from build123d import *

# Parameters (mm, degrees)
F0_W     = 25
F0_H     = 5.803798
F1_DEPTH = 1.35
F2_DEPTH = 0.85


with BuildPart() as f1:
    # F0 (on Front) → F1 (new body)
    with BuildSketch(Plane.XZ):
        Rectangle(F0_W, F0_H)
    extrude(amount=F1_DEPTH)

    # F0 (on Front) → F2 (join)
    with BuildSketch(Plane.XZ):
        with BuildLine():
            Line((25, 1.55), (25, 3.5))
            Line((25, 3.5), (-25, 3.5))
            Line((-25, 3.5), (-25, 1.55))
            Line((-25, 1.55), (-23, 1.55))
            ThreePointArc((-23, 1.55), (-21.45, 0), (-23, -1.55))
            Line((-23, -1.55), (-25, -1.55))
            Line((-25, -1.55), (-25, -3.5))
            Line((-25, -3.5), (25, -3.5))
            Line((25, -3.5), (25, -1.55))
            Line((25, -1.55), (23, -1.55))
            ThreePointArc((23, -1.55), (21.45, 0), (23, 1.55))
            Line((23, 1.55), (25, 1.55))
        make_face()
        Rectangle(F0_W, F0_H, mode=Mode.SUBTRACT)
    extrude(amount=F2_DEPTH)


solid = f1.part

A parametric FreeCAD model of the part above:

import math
import FreeCAD as App
import Part
import Sketcher

V = App.Vector


def add_polygon(sketch, points):
    """Adds a closed chain of lines whose ends are joined by coincident constraints."""
    first, n = sketch.GeometryCount, len(points)
    for a, b in zip(points, points[1:] + points[:1]):
        sketch.addGeometry(Part.LineSegment(App.Vector(*a, 0), App.Vector(*b, 0)), False)
    for i in range(n):
        sketch.addConstraint(Sketcher.Constraint("Coincident", first + i, 2, first + (i + 1) % n, 1))

doc = App.newDocument("Part")
body = doc.addObject("PartDesign::Body", "Body")

# Sketch on XZ plane
sketch1 = body.newObject("Sketcher::SketchObject", "Sketch")
sketch1.AttachmentSupport = (doc.getObject("XZ_Plane"), [""])
sketch1.MapMode = "FlatFace"
add_polygon(sketch1, [(-12.5, 2.901899), (-12.5, -2.901899), (12.5, -2.901899), (12.5, 2.901899)])  # lines 0-3
sketch1.addConstraint([
    Sketcher.Constraint("Vertical", 0),
    Sketcher.Constraint("Horizontal", 1),
    Sketcher.Constraint("Vertical", 2),
    Sketcher.Constraint("Horizontal", 3),
    Sketcher.Constraint("Symmetric", 0, 2, 2, 2, -1, 1),
    Sketcher.Constraint("DistanceX", 1, 1, 1, 2, 25.0),
    Sketcher.Constraint("DistanceY", 0, 2, -1, 1, 2.901899),
])
pad1 = body.newObject("PartDesign::Pad", "Pad")
pad1.Profile = sketch1
pad1.Length = 1.35

# Sketch on XZ plane
sketch2 = body.newObject("Sketcher::SketchObject", "Sketch001")
sketch2.AttachmentSupport = (doc.getObject("XZ_Plane"), [""])
sketch2.MapMode = "FlatFace"
sketch2.addGeometry(Part.LineSegment(V(25, 1.55, 0), V(25, 3.5, 0)), False)  # 0
sketch2.addGeometry(Part.LineSegment(V(25, 3.5, 0), V(-25, 3.5, 0)), False)  # 1
sketch2.addGeometry(Part.LineSegment(V(-25, 3.5, 0), V(-25, 1.55, 0)), False)  # 2
sketch2.addGeometry(Part.LineSegment(V(-25, 1.55, 0), V(-23, 1.55, 0)), False)  # 3
sketch2.addGeometry(Part.ArcOfCircle(Part.Circle(V(-23, 0, 0), V(0, 0, 1), 1.55), math.radians(-90), math.radians(90)), False)  # 4
sketch2.addGeometry(Part.LineSegment(V(-23, -1.55, 0), V(-25, -1.55, 0)), False)  # 5
sketch2.addGeometry(Part.LineSegment(V(-25, -1.55, 0), V(-25, -3.5, 0)), False)  # 6
sketch2.addGeometry(Part.LineSegment(V(-25, -3.5, 0), V(25, -3.5, 0)), False)  # 7
sketch2.addGeometry(Part.LineSegment(V(25, -3.5, 0), V(25, -1.55, 0)), False)  # 8
sketch2.addGeometry(Part.LineSegment(V(25, -1.55, 0), V(23, -1.55, 0)), False)  # 9
sketch2.addGeometry(Part.ArcOfCircle(Part.Circle(V(23, 0, 0), V(0, 0, 1), 1.55), math.radians(90), math.radians(270)), False)  # 10
sketch2.addGeometry(Part.LineSegment(V(23, 1.55, 0), V(25, 1.55, 0)), False)  # 11
add_polygon(sketch2, [(12.5, -2.901899), (-12.5, -2.901899), (-12.5, 2.901899), (12.5, 2.901899)])  # lines 12-15
sketch2.addConstraint([
    Sketcher.Constraint("Coincident", 0, 2, 1, 1),
    Sketcher.Constraint("Coincident", 1, 2, 2, 1),
    Sketcher.Constraint("Coincident", 2, 2, 3, 1),
    Sketcher.Constraint("Tangent", 3, 2, 4, 2),
    Sketcher.Constraint("Tangent", 4, 1, 5, 1),
    Sketcher.Constraint("Coincident", 5, 2, 6, 1),
    Sketcher.Constraint("Coincident", 6, 2, 7, 1),
    Sketcher.Constraint("Coincident", 7, 2, 8, 1),
    Sketcher.Constraint("Coincident", 8, 2, 9, 1),
    Sketcher.Constraint("Tangent", 9, 2, 10, 2),
    Sketcher.Constraint("Tangent", 10, 1, 11, 1),
    Sketcher.Constraint("Coincident", 11, 2, 0, 1),
    Sketcher.Constraint("Vertical", 0),
    Sketcher.Constraint("Horizontal", 1),
    Sketcher.Constraint("Vertical", 2),
    Sketcher.Constraint("Horizontal", 3),
    Sketcher.Constraint("Horizontal", 5),
    Sketcher.Constraint("Vertical", 6),
    Sketcher.Constraint("Horizontal", 7),
    Sketcher.Constraint("Vertical", 8),
    Sketcher.Constraint("Horizontal", 9),
    Sketcher.Constraint("Horizontal", 11),
    Sketcher.Constraint("Horizontal", 12),
    Sketcher.Constraint("Vertical", 13),
    Sketcher.Constraint("Horizontal", 14),
    Sketcher.Constraint("Vertical", 15),
    Sketcher.Constraint("Equal", 4, 10),
    Sketcher.Constraint("Symmetric", 4, 3, 10, 3, -1, 1),
    Sketcher.Constraint("Symmetric", 0, 2, 6, 2, -1, 1),
    Sketcher.Constraint("Symmetric", 12, 2, 14, 2, -1, 1),
    Sketcher.Constraint("Symmetric", 5, 2, 8, 2, -2),
    Sketcher.Constraint("Vertical", 2, 2, 5, 2),
    Sketcher.Constraint("DistanceX", 1, 2, 1, 1, 50.0),
    Sketcher.Constraint("DistanceX", 3, 1, 3, 2, 2.0),
    Sketcher.Constraint("DistanceX", 12, 2, 12, 1, 25.0),
    Sketcher.Constraint("Radius", 4, 1.55),
    Sketcher.Constraint("DistanceY", 7, 2, 0, 2, 7.0),
    Sketcher.Constraint("DistanceY", 12, 2, -1, 1, 2.901899),
])
pad2 = body.newObject("PartDesign::Pad", "Pad001")
pad2.Profile = sketch2
pad2.Length = 0.85

doc.recompute()
